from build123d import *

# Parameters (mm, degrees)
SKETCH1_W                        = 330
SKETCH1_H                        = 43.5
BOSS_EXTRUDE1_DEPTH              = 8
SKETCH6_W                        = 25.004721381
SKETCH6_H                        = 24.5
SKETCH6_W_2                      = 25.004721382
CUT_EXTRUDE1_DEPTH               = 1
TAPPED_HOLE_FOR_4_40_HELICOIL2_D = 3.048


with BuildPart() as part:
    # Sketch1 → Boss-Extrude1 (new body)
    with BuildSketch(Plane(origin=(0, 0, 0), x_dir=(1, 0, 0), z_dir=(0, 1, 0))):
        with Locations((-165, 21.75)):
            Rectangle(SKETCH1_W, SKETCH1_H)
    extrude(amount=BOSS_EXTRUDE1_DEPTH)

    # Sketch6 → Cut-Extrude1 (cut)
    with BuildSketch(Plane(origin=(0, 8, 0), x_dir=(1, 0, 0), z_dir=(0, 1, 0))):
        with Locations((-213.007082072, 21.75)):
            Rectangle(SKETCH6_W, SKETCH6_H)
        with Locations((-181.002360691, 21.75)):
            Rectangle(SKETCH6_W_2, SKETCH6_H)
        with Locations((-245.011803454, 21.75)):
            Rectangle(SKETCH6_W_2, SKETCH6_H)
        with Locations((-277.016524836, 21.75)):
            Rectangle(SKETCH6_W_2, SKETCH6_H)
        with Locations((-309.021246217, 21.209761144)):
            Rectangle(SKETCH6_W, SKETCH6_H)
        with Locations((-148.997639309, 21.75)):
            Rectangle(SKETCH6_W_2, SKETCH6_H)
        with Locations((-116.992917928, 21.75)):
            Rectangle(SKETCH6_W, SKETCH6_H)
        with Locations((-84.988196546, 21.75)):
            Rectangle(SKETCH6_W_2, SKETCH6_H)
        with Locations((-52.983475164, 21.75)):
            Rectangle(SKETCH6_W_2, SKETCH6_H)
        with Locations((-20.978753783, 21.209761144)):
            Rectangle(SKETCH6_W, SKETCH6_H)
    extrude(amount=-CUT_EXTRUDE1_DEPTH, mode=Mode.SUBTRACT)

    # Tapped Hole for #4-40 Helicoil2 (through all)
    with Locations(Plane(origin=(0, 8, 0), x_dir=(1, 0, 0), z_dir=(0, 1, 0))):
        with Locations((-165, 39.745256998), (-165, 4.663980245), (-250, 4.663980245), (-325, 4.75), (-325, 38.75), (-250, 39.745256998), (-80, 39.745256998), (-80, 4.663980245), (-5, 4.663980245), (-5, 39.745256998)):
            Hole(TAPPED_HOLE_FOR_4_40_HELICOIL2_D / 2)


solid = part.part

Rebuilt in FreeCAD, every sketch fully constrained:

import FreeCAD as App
import Part
import Sketcher
from FreeCAD import Vector

doc = App.newDocument("Part")
body = doc.addObject("PartDesign::Body", "Body")

# Sketch on XZ plane
sketch1 = body.newObject("Sketcher::SketchObject", "Sketch")
sketch1.AttachmentSupport = (doc.getObject("XZ_Plane"), [""])
sketch1.MapMode = "FlatFace"
sketch1.addGeometry([
    Part.LineSegment(Vector(-330, -43.5, 0), Vector(-330, 0, 0)),
    Part.LineSegment(Vector(-330, 0, 0), Vector(0, 0, 0)),
    Part.LineSegment(Vector(0, 0, 0), Vector(0, -43.5, 0)),
    Part.LineSegment(Vector(0, -43.5, 0), Vector(-330, -43.5, 0)),
], False)
sketch1.addConstraint([
    Sketcher.Constraint("Coincident", 0, 2, 1, 1),
    Sketcher.Constraint("Coincident", 1, 2, 2, 1),
    Sketcher.Constraint("Coincident", 2, 2, 3, 1),
    Sketcher.Constraint("Coincident", 3, 2, 0, 1),
    Sketcher.Constraint("Vertical", 0),
    Sketcher.Constraint("Horizontal", 1),
    Sketcher.Constraint("Vertical", 2),
    Sketcher.Constraint("Horizontal", 3),
    Sketcher.Constraint("Coincident", 1, 2, -1, 1),
    Sketcher.Constraint("DistanceX", 1, 1, 1, 2, 330.0),
    Sketcher.Constraint("DistanceY", 0, 1, 0, 2, 43.5),
])
pad1 = body.newObject("PartDesign::Pad", "Pad")
pad1.Profile = sketch1
pad1.Length = 8
pad1.Reversed = True

# Sketch on XZ plane
sketch2 = body.newObject("Sketcher::SketchObject", "Sketch001")
sketch2.AttachmentSupport = (doc.getObject("XZ_Plane"), [""])
sketch2.MapMode = "FlatFace"
sketch2.AttachmentOffset = App.Placement(Vector(0, 0, -8), App.Rotation())
sketch2.addGeometry([
    Part.LineSegment(Vector(-225.509443, -34, 0), Vector(-225.509443, -9.5, 0)),  # 0
    Part.LineSegment(Vector(-225.509443, -9.5, 0), Vector(-200.504721, -9.5, 0)),  # 1
    Part.LineSegment(Vector(-200.504721, -9.5, 0), Vector(-200.504721, -34, 0)),  # 2
    Part.LineSegment(Vector(-200.504721, -34, 0), Vector(-225.509443, -34, 0)),  # 3
    Part.LineSegment(Vector(-193.504721, -34, 0), Vector(-193.504721, -9.5, 0)),  # 4
    Part.LineSegment(Vector(-193.504721, -9.5, 0), Vector(-168.5, -9.5, 0)),  # 5
    Part.LineSegment(Vector(-168.5, -9.5, 0), Vector(-168.5, -34, 0)),  # 6
    Part.LineSegment(Vector(-168.5, -34, 0), Vector(-193.504721, -34, 0)),  # 7
    Part.LineSegment(Vector(-257.514164, -34, 0), Vector(-257.514164, -9.5, 0)),  # 8
    Part.LineSegment(Vector(-257.514164, -9.5, 0), Vector(-232.509443, -9.5, 0)),  # 9
    Part.LineSegment(Vector(-232.509443, -9.5, 0), Vector(-232.509443, -34, 0)),  # 10
    Part.LineSegment(Vector(-232.509443, -34, 0), Vector(-257.514164, -34, 0)),  # 11
    Part.LineSegment(Vector(-289.518886, -34, 0), Vector(-289.518886, -9.5, 0)),  # 12
    Part.LineSegment(Vector(-289.518886, -9.5, 0), Vector(-264.514164, -9.5, 0)),  # 13
    Part.LineSegment(Vector(-264.514164, -9.5, 0), Vector(-264.514164, -34, 0)),  # 14
    Part.LineSegment(Vector(-264.514164, -34, 0), Vector(-289.518886, -34, 0)),  # 15
    Part.LineSegment(Vector(-321.523607, -33.459761, 0), Vector(-321.523607, -8.959761, 0)),  # 16
    Part.LineSegment(Vector(-321.523607, -8.959761, 0), Vector(-296.518886, -8.959761, 0)),  # 17
    Part.LineSegment(Vector(-296.518886, -8.959761, 0), Vector(-296.518886, -33.459761, 0)),  # 18
    Part.LineSegment(Vector(-296.518886, -33.459761, 0), Vector(-321.523607, -33.459761, 0)),  # 19
    Part.LineSegment(Vector(-161.5, -34, 0), Vector(-161.5, -9.5, 0)),  # 20
    Part.LineSegment(Vector(-161.5, -9.5, 0), Vector(-136.495279, -9.5, 0)),  # 21
    Part.LineSegment(Vector(-136.495279, -9.5, 0), Vector(-136.495279, -34, 0)),  # 22
    Part.LineSegment(Vector(-136.495279, -34, 0), Vector(-161.5, -34, 0)),  # 23
    Part.LineSegment(Vector(-129.495279, -34, 0), Vector(-129.495279, -9.5, 0)),  # 24
    Part.LineSegment(Vector(-129.495279, -9.5, 0), Vector(-104.490557, -9.5, 0)),  # 25
    Part.LineSegment(Vector(-104.490557, -9.5, 0), Vector(-104.490557, -34, 0)),  # 26
    Part.LineSegment(Vector(-104.490557, -34, 0), Vector(-129.495279, -34, 0)),  # 27
    Part.LineSegment(Vector(-97.490557, -34, 0), Vector(-97.490557, -9.5, 0)),  # 28
    Part.LineSegment(Vector(-97.490557, -9.5, 0), Vector(-72.485836, -9.5, 0)),  # 29
    Part.LineSegment(Vector(-72.485836, -9.5, 0), Vector(-72.485836, -34, 0)),  # 30
    Part.LineSegment(Vector(-72.485836, -34, 0), Vector(-97.490557, -34, 0)),  # 31
    Part.LineSegment(Vector(-65.485836, -34, 0), Vector(-65.485836, -9.5, 0)),  # 32
    Part.LineSegment(Vector(-65.485836, -9.5, 0), Vector(-40.481114, -9.5, 0)),  # 33
    Part.LineSegment(Vector(-40.481114, -9.5, 0), Vector(-40.481114, -34, 0)),  # 34
    Part.LineSegment(Vector(-40.481114, -34, 0), Vector(-65.485836, -34, 0)),  # 35
    Part.LineSegment(Vector(-33.481114, -33.459761, 0), Vector(-33.481114, -8.959761, 0)),  # 36
    Part.LineSegment(Vector(-33.481114, -8.959761, 0), Vector(-8.476393, -8.959761, 0)),  # 37
    Part.LineSegment(Vector(-8.476393, -8.959761, 0), Vector(-8.476393, -33.459761, 0)),  # 38
    Part.LineSegment(Vector(-8.476393, -33.459761, 0), Vector(-33.481114, -33.459761, 0)),  # 39
], False)
sketch2.addConstraint([
    Sketcher.Constraint("Coincident", 0, 2, 1, 1),
    Sketcher.Constraint("Coincident", 1, 2, 2, 1),
    Sketcher.Constraint("Coincident", 2, 2, 3, 1),
    Sketcher.Constraint("Coincident", 3, 2, 0, 1),
    Sketcher.Constraint("Coincident", 4, 2, 5, 1),
    Sketcher.Constraint("Coincident", 5, 2, 6, 1),
    Sketcher.Constraint("Coincident", 6, 2, 7, 1),
    Sketcher.Constraint("Coincident", 7, 2, 4, 1),
    Sketcher.Constraint("Coincident", 8, 2, 9, 1),
    Sketcher.Constraint("Coincident", 9, 2, 10, 1),
    Sketcher.Constraint("Coincident", 10, 2, 11, 1),
    Sketcher.Constraint("Coincident", 11, 2, 8, 1),
    Sketcher.Constraint("Coincident", 12, 2, 13, 1),
    Sketcher.Constraint("Coincident", 13, 2, 14, 1),
    Sketcher.Constraint("Coincident", 14, 2, 15, 1),
    Sketcher.Constraint("Coincident", 15, 2, 12, 1),
    Sketcher.Constraint("Coincident", 16, 2, 17, 1),
    Sketcher.Constraint("Coincident", 17, 2, 18, 1),
    Sketcher.Constraint("Coincident", 18, 2, 19, 1),
    Sketcher.Constraint("Coincident", 19, 2, 16, 1),
    Sketcher.Constraint("Coincident", 20, 2, 21, 1),
    Sketcher.Constraint("Coincident", 21, 2, 22, 1),
    Sketcher.Constraint("Coincident", 22, 2, 23, 1),
    Sketcher.Constraint("Coincident", 23, 2, 20, 1),
    Sketcher.Constraint("Coincident", 24, 2, 25, 1),
    Sketcher.Constraint("Coincident", 25, 2, 26, 1),
    Sketcher.Constraint("Coincident", 26, 2, 27, 1),
    Sketcher.Constraint("Coincident", 27, 2, 24, 1),
    Sketcher.Constraint("Coincident", 28, 2, 29, 1),
    Sketcher.Constraint("Coincident", 29, 2, 30, 1),
    Sketcher.Constraint("Coincident", 30, 2, 31, 1),
    Sketcher.Constraint("Coincident", 31, 2, 28, 1),
    Sketcher.Constraint("Coincident", 32, 2, 33, 1),
    Sketcher.Constraint("Coincident", 33, 2, 34, 1),
    Sketcher.Constraint("Coincident", 34, 2, 35, 1),
    Sketcher.Constraint("Coincident", 35, 2, 32, 1),
    Sketcher.Constraint("Coincident", 36, 2, 37, 1),
    Sketcher.Constraint("Coincident", 37, 2, 38, 1),
    Sketcher.Constraint("Coincident", 38, 2, 39, 1),
    Sketcher.Constraint("Coincident", 39, 2, 36, 1),
    Sketcher.Constraint("Vertical", 0),
    Sketcher.Constraint("Horizontal", 1),
    Sketcher.Constraint("Vertical", 2),
    Sketcher.Constraint("Horizontal", 3),
    Sketcher.Constraint("Vertical", 4),
    Sketcher.Constraint("Horizontal", 5),
    Sketcher.Constraint("Vertical", 6),
    Sketcher.Constraint("Horizontal", 7),
    Sketcher.Constraint("Vertical", 8),
    Sketcher.Constraint("Horizontal", 9),
    Sketcher.Constraint("Vertical", 10),
    Sketcher.Constraint("Horizontal", 11),
    Sketcher.Constraint("Vertical", 12),
    Sketcher.Constraint("Horizontal", 13),
    Sketcher.Constraint("Vertical", 14),
    Sketcher.Constraint("Horizontal", 15),
    Sketcher.Constraint("Vertical", 16),
    Sketcher.Constraint("Horizontal", 17),
    Sketcher.Constraint("Vertical", 18),
    Sketcher.Constraint("Horizontal", 19),
    Sketcher.Constraint("Vertical", 20),
    Sketcher.Constraint("Horizontal", 21),
    Sketcher.Constraint("Vertical", 22),
    Sketcher.Constraint("Horizontal", 23),
    Sketcher.Constraint("Vertical", 24),
    Sketcher.Constraint("Horizontal", 25),
    Sketcher.Constraint("Vertical", 26),
    Sketcher.Constraint("Horizontal", 27),
    Sketcher.Constraint("Vertical", 28),
    Sketcher.Constraint("Horizontal", 29),
    Sketcher.Constraint("Vertical", 30),
    Sketcher.Constraint("Horizontal", 31),
    Sketcher.Constraint("Vertical", 32),
    Sketcher.Constraint("Horizontal", 33),
    Sketcher.Constraint("Vertical", 34),
    Sketcher.Constraint("Horizontal", 35),
    Sketcher.Constraint("Vertical", 36),
    Sketcher.Constraint("Horizontal", 37),
    Sketcher.Constraint("Vertical", 38),
    Sketcher.Constraint("Horizontal", 39),
    Sketcher.Constraint("Horizontal", 1, 2, 4, 2),
    Sketcher.Constraint("Horizontal", 3, 2, 6, 2),
    Sketcher.Constraint("Horizontal", 5, 2, 8, 2),
    Sketcher.Constraint("Horizontal", 7, 2, 10, 2),
    Sketcher.Constraint("Horizontal", 9, 2, 12, 2),
    Sketcher.Constraint("Horizontal", 11, 2, 14, 2),
    Sketcher.Constraint("Horizontal", 13, 2, 20, 2),
    Sketcher.Constraint("Horizontal", 15, 2, 22, 2),
    Sketcher.Constraint("Horizontal", 21, 2, 24, 2),
    Sketcher.Constraint("Horizontal", 23, 2, 26, 2),
    Sketcher.Constraint("Horizontal", 25, 2, 28, 2),
    Sketcher.Constraint("Horizontal", 27, 2, 30, 2),
    Sketcher.Constraint("Horizontal", 29, 2, 32, 2),
    Sketcher.Constraint("Horizontal", 31, 2, 34, 2),
    Sketcher.Constraint("Horizontal", 17, 2, 36, 2),
    Sketcher.Constraint("Horizontal", 19, 2, 38, 2),
    Sketcher.Constraint("Equal", 3, 5),
    Sketcher.Constraint("Equal", 7, 9),
    Sketcher.Constraint("Equal", 11, 13),
    Sketcher.Constraint("Equal", 15, 17),
    Sketcher.Constraint("Equal", 19, 21),
    Sketcher.Constraint("Equal", 23, 25),
    Sketcher.Constraint("Equal", 27, 29),
    Sketcher.Constraint("Equal", 31, 33),
    Sketcher.Constraint("Equal", 35, 37),
    Sketcher.Constraint("Equal", 14, 16),
    Sketcher.Constraint("DistanceY", 0, 1, 0, 2, 24.5),
    Sketcher.Constraint("DistanceY", 2, 2, -1, 1, 34.0),
    Sketcher.Constraint("DistanceX", 1, 2, 4, 2, 7.0),
    Sketcher.Constraint("DistanceX", 9, 2, 0, 2, 7.0),
    Sketcher.Constraint("DistanceX", 13, 2, 8, 2, 7.0),
    Sketcher.Constraint("DistanceX", 17, 2, 12, 2, 7.0),
    Sketcher.Constraint("DistanceX", 5, 2, 20, 2, 7.0),
    Sketcher.Constraint("DistanceX", 21, 2, 24, 2, 7.0),
    Sketcher.Constraint("DistanceX", 25, 2, 28, 2, 7.0),
    Sketcher.Constraint("DistanceX", 29, 2, 32, 2, 7.0),
    Sketcher.Constraint("DistanceX", 33, 2, 36, 2, 7.0),
    Sketcher.Constraint("DistanceX", 5, 2, -1, 1, 168.5),
    Sketcher.Constraint("DistanceX", 1, 1, 1, 2, 25.004721),
    Sketcher.Constraint("DistanceY", 16, 2, -1, 1, 8.959761),
])
pocket1 = body.newObject("PartDesign::Pocket", "Pocket")
pocket1.Profile = sketch2
pocket1.Length = 1
pocket1.Reversed = True

# Sketch on XZ plane
sketch3 = body.newObject("Sketcher::SketchObject", "Sketch002")
sketch3.AttachmentSupport = (doc.getObject("XZ_Plane"), [""])
sketch3.MapMode = "FlatFace"
sketch3.AttachmentOffset = App.Placement(Vector(0, 0, -8), App.Rotation())
sketch3.addGeometry([
    Part.Circle(Vector(-165, -39.745257, 0), Vector(0, 0, 1), 1.524),  # 0
    Part.Circle(Vector(-165, -4.66398, 0), Vector(0, 0, 1), 1.524),  # 1
    Part.Circle(Vector(-250, -4.66398, 0), Vector(0, 0, 1), 1.524),  # 2
    Part.Circle(Vector(-325, -4.75, 0), Vector(0, 0, 1), 1.524),  # 3
    Part.Circle(Vector(-325, -38.75, 0), Vector(0, 0, 1), 1.524),  # 4
    Part.Circle(Vector(-250, -39.745257, 0), Vector(0, 0, 1), 1.524),  # 5
    Part.Circle(Vector(-80, -39.745257, 0), Vector(0, 0, 1), 1.524),  # 6
    Part.Circle(Vector(-80, -4.66398, 0), Vector(0, 0, 1), 1.524),  # 7
    Part.Circle(Vector(-5, -4.66398, 0), Vector(0, 0, 1), 1.524),  # 8
    Part.Circle(Vector(-5, -39.745257, 0), Vector(0, 0, 1), 1.524),  # 9
], False)
sketch3.addConstraint([
    Sketcher.Constraint("Equal", 0, 1),
    Sketcher.Constraint("Equal", 1, 2),
    Sketcher.Constraint("Equal", 2, 3),
    Sketcher.Constraint("Equal", 3, 4),
    Sketcher.Constraint("Equal", 4, 5),
    Sketcher.Constraint("Equal", 5, 6),
    Sketcher.Constraint("Equal", 6, 7),
    Sketcher.Constraint("Equal", 7, 8),
    Sketcher.Constraint("Equal", 8, 9),
    Sketcher.Constraint("Horizontal", 1, 3, 2, 3),
    Sketcher.Constraint("Horizontal", 0, 3, 5, 3),
    Sketcher.Constraint("Horizontal", 5, 3, 6, 3),
    Sketcher.Constraint("Horizontal", 2, 3, 7, 3),
    Sketcher.Constraint("Horizontal", 7, 3, 8, 3),
    Sketcher.Constraint("Horizontal", 6, 3, 9, 3),
    Sketcher.Constraint("Vertical", 0, 3, 1, 3),
    Sketcher.Constraint("Vertical", 3, 3, 4, 3),
    Sketcher.Constraint("Vertical", 2, 3, 5, 3),
    Sketcher.Constraint("Vertical", 6, 3, 7, 3),
    Sketcher.Constraint("Vertical", 8, 3, 9, 3),
    Sketcher.Constraint("Diameter", 0, 3.048),
    Sketcher.Constraint("DistanceX", 0, 3, -1, 1, 165.0),
    Sketcher.Constraint("DistanceX", 2, 3, -1, 1, 250.0),
    Sketcher.Constraint("DistanceX", 3, 3, -1, 1, 325.0),
    Sketcher.Constraint("DistanceX", 6, 3, -1, 1, 80.0),
    Sketcher.Constraint("DistanceX", 8, 3, -1, 1, 5.0),
    Sketcher.Constraint("DistanceY", 4, 3, 3, 3, 34.0),
    Sketcher.Constraint("DistanceY", 3, 3, -1, 1, 4.75),
    Sketcher.Constraint("DistanceY", 1, 3, -1, 1, 4.66398),
    Sketcher.Constraint("DistanceY", 0, 3, -1, 1, 39.745257),
])
doc.recompute()
hole = body.newObject("PartDesign::Hole", "Hole")
hole.Profile = sketch3
hole.ThreadType = "None"
hole.Diameter = 3.048
hole.DepthType = "ThroughAll"
hole.Reversed = True

doc.recompute()
